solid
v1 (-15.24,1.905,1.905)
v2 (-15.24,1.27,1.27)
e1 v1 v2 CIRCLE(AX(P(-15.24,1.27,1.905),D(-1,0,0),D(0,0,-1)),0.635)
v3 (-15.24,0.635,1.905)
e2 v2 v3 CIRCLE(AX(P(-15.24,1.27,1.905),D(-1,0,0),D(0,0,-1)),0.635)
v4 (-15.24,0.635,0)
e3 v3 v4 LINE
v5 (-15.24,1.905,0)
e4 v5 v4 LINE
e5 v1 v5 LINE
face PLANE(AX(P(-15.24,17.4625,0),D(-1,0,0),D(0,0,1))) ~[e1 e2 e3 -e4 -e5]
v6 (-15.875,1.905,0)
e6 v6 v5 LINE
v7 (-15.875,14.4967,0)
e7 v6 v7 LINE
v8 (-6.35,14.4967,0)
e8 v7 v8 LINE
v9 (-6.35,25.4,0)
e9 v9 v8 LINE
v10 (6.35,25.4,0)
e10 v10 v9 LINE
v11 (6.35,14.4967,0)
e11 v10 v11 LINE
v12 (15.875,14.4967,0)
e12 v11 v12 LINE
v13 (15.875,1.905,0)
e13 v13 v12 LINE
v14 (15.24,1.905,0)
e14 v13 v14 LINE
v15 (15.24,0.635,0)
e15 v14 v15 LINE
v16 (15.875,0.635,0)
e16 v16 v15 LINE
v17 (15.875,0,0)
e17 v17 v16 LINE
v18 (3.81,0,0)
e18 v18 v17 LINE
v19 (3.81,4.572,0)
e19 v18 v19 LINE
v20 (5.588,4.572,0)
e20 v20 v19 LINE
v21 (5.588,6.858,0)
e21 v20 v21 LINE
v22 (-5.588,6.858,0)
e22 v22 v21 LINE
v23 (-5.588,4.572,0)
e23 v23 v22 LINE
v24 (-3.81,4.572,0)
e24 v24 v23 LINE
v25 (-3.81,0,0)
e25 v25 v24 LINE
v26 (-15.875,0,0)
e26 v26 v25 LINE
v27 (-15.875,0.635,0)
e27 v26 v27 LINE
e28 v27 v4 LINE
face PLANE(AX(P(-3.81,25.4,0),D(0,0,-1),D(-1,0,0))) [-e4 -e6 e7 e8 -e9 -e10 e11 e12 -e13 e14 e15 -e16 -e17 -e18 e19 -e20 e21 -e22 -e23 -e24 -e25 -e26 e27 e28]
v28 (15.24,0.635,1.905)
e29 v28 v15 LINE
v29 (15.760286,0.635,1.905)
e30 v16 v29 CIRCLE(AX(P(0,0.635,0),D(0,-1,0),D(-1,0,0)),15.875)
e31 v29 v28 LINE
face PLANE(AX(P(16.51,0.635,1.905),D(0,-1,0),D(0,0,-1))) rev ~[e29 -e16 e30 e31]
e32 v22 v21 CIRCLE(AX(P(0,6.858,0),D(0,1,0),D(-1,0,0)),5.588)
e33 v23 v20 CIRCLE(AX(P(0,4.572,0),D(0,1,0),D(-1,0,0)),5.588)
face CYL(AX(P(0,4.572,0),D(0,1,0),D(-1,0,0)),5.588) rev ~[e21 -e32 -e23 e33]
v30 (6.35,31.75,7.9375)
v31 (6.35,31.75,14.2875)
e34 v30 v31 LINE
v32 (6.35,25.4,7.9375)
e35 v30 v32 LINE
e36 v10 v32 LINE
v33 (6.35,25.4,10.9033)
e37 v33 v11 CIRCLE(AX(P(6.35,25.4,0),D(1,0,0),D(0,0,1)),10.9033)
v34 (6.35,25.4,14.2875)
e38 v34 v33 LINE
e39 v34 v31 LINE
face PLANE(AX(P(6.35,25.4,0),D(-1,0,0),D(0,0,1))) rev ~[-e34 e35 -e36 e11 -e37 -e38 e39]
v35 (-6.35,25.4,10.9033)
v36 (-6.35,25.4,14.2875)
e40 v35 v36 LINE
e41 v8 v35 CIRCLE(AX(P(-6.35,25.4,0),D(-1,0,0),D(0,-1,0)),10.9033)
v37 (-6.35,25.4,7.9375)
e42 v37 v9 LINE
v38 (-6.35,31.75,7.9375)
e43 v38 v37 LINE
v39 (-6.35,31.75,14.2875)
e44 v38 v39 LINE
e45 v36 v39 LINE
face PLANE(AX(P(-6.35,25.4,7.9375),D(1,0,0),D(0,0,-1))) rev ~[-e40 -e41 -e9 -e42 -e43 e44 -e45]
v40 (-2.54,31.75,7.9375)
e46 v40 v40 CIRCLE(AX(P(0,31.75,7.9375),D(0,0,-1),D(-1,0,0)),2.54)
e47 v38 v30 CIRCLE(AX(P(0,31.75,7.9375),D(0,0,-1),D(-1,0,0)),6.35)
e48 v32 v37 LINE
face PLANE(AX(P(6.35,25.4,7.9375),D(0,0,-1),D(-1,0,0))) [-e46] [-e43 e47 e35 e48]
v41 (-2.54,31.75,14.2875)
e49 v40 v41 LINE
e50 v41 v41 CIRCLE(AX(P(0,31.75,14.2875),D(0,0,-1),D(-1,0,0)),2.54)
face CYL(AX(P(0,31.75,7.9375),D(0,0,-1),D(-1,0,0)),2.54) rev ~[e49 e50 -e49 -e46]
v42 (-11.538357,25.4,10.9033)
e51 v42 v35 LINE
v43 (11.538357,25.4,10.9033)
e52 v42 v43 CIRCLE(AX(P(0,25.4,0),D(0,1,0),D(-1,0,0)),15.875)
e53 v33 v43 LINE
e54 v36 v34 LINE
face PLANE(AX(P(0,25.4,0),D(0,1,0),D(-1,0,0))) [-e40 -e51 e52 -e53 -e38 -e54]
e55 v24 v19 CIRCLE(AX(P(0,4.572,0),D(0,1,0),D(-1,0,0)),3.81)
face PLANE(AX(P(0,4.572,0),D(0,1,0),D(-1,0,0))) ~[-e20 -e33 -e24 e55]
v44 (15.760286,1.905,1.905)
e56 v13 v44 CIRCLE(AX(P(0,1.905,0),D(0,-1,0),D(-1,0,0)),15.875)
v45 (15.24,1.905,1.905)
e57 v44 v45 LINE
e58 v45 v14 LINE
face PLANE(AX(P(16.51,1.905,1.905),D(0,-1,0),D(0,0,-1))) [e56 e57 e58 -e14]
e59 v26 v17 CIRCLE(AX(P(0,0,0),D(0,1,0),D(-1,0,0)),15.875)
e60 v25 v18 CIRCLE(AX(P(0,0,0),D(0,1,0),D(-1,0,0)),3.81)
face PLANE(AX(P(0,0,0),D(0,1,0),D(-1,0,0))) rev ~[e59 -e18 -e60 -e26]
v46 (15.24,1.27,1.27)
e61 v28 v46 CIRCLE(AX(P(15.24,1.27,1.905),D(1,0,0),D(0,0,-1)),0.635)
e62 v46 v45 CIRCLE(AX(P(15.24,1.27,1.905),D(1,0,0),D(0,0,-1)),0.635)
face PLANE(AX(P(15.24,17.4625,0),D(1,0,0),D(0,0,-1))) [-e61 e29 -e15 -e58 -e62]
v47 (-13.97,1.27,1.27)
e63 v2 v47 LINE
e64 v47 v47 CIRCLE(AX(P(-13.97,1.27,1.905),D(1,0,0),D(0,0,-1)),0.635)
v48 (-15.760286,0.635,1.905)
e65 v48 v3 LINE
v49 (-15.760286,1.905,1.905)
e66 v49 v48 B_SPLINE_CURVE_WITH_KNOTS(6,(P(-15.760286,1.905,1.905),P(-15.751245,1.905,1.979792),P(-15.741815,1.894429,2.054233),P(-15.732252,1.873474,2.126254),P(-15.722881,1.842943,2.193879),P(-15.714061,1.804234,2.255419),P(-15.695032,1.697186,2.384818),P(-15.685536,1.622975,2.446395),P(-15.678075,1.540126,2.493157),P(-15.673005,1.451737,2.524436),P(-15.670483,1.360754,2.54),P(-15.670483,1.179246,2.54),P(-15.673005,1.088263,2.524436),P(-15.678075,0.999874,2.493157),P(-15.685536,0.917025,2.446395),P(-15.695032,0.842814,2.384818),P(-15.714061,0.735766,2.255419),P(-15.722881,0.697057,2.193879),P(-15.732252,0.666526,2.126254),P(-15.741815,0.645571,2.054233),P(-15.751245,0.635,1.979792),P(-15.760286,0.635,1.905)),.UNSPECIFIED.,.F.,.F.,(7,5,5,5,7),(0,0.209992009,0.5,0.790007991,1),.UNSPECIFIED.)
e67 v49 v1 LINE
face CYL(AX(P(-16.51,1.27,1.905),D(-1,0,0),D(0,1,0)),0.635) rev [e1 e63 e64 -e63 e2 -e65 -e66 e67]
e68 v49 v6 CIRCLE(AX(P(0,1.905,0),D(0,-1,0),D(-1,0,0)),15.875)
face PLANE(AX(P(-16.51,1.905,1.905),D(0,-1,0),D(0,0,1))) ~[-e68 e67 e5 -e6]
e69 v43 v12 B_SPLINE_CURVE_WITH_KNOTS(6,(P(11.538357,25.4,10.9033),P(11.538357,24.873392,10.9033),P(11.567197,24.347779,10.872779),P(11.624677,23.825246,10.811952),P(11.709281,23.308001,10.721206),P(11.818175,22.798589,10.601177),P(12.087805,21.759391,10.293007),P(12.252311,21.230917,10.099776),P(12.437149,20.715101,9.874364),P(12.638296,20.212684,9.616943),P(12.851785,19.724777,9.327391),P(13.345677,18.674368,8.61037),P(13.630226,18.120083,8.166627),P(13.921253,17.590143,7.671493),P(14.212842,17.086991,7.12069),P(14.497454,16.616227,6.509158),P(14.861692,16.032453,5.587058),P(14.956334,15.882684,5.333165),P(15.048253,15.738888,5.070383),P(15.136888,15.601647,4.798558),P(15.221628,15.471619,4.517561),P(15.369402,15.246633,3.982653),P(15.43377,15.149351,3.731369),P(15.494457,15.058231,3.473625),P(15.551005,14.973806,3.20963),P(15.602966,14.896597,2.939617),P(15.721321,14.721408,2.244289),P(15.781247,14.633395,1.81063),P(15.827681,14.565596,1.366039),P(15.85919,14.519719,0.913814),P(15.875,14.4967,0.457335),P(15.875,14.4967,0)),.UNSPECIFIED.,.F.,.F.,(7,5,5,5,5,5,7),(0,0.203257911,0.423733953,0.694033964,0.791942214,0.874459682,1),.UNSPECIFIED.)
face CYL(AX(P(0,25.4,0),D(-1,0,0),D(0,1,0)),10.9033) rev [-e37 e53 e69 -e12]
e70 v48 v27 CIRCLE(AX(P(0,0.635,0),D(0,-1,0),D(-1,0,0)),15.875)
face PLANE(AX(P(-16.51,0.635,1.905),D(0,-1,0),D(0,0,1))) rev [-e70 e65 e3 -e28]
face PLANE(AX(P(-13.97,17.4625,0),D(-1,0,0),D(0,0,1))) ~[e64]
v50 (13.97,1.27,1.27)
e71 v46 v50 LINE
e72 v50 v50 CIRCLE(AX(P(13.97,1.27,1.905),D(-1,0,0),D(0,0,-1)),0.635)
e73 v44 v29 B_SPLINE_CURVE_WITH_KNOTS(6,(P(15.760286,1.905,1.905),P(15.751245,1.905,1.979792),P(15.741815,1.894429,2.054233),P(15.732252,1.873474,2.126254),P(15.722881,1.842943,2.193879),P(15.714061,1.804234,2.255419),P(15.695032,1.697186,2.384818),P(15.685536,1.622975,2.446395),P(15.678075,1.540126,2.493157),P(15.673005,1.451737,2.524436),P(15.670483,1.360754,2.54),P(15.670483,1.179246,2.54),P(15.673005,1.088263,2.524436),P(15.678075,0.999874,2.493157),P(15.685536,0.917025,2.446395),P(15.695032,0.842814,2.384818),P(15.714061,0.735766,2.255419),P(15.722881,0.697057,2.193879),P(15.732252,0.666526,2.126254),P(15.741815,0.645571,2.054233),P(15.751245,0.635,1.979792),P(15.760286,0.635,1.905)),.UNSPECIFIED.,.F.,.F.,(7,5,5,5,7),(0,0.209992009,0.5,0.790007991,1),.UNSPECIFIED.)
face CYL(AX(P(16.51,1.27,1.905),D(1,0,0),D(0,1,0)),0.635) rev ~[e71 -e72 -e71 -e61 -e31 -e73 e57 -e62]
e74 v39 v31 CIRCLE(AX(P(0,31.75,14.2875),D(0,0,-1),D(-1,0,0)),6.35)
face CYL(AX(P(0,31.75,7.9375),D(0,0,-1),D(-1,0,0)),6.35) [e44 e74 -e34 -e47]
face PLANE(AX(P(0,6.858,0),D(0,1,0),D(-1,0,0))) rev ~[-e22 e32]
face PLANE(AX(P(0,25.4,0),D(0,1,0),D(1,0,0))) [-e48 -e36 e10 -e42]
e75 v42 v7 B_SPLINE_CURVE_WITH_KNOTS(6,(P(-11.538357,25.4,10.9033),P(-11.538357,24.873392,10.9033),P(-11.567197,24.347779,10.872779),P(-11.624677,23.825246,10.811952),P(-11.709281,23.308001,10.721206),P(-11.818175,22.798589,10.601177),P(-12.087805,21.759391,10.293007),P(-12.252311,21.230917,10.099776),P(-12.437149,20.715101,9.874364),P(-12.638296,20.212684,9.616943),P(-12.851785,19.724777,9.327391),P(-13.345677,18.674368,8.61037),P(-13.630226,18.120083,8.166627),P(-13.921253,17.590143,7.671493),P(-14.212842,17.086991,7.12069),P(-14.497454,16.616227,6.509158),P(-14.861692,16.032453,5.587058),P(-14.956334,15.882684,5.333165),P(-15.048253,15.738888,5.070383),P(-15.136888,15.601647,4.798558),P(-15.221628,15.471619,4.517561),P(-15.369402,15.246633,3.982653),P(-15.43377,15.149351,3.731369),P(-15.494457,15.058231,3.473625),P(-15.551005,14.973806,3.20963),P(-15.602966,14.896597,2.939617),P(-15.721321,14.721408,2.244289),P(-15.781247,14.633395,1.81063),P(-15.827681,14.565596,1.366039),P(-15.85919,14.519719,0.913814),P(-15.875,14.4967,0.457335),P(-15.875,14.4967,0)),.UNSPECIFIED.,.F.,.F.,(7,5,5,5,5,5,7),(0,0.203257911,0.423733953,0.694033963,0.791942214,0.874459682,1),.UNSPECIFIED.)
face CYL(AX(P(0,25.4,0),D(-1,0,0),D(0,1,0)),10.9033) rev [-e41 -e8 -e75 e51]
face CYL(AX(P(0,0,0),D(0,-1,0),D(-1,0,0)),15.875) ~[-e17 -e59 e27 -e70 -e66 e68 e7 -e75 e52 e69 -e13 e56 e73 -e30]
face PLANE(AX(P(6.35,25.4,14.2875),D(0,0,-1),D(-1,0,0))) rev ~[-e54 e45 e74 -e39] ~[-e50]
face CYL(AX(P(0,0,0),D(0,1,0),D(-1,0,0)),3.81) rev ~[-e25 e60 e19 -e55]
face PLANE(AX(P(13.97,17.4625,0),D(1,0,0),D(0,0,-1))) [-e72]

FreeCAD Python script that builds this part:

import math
import FreeCAD as App
import Part
import Sketcher

V = App.Vector
Q = App.Units.Quantity


def add_polygon(sketch, points):
    """Adds a closed chain of lines whose ends are joined by coincident constraints."""
    first, n = sketch.GeometryCount, len(points)
    for a, b in zip(points, points[1:] + points[:1]):
        sketch.addGeometry(Part.LineSegment(App.Vector(*a, 0), App.Vector(*b, 0)), False)
    for i in range(n):
        sketch.addConstraint(Sketcher.Constraint("Coincident", first + i, 2, first + (i + 1) % n, 1))

doc = App.newDocument("Part")
body = doc.addObject("PartDesign::Body", "Body")

# Sketch on XZ plane
sketch1 = doc.addObject("Sketcher::SketchObject", "Sketch")
body.addObject(sketch1)
sketch1.AttachmentSupport = (doc.XZ_Plane, [""])
sketch1.MapMode = "FlatFace"
sketch1.addGeometry(Part.LineSegment(V(16, 0, 0), V(-16, 0, 0)), False)
sketch1.addGeometry(Part.ArcOfCircle(Part.Circle(V(0, 0, 0), V(0, 0, 1), 16), math.radians(0), math.radians(180)), False)
sketch1.addConstraint(Sketcher.Constraint("Coincident", 0, 1, 1, 1))
sketch1.addConstraint(Sketcher.Constraint("Coincident", 1, 2, 0, 2))
sketch1.addConstraint(Sketcher.Constraint("Horizontal", 0))
sketch1.addConstraint(Sketcher.Constraint("Coincident", 1, 3, -1, 1))
sketch1.addConstraint(Sketcher.Constraint("PointOnObject", 0, 1, -1))
sketch1.addConstraint(Sketcher.Constraint("Radius", 1, Q("0.625 in")))
pad1 = doc.addObject("PartDesign::Pad", "Pad")
body.addObject(pad1)
pad1.Profile = sketch1
pad1.Length = Q("1 in")
pad1.Reversed = True

# Sketch on XY plane
sketch2 = doc.addObject("Sketcher::SketchObject", "Sketch001")
body.addObject(sketch2)
sketch2.AttachmentSupport = (doc.XY_Plane, [""])
sketch2.MapMode = "FlatFace"
add_polygon(sketch2, [(0, 0), (-3.8, 0), (-3.8, 4.6), (-5.6, 4.6), (-5.6, 6.9), (0, 6.9)])  # lines 0-5
sketch2.addConstraint(Sketcher.Constraint("Horizontal", 0))
sketch2.addConstraint(Sketcher.Constraint("Vertical", 1))
sketch2.addConstraint(Sketcher.Constraint("Horizontal", 2))
sketch2.addConstraint(Sketcher.Constraint("Vertical", 3))
sketch2.addConstraint(Sketcher.Constraint("Horizontal", 4))
sketch2.addConstraint(Sketcher.Constraint("Vertical", 5))
sketch2.addConstraint(Sketcher.Constraint("Coincident", 5, 2, -1, 1))
sketch2.addConstraint(Sketcher.Constraint("DistanceX", 2, 2, 2, 1, Q("0.07 in")))
sketch2.addConstraint(Sketcher.Constraint("DistanceX", 0, 2, 0, 1, Q("0.15 in")))
sketch2.addConstraint(Sketcher.Constraint("DistanceY", 1, 1, 1, 2, Q("0.18 in")))
sketch2.addConstraint(Sketcher.Constraint("DistanceY", 3, 1, 3, 2, Q("0.09 in")))
groove = doc.addObject("PartDesign::Groove", "Groove")
body.addObject(groove)
groove.Profile = sketch2
groove.ReferenceAxis = (sketch2, ["V_Axis"])
groove.Angle = 360

# Sketch on YZ plane
sketch3 = doc.addObject("Sketcher::SketchObject", "Sketch002")
body.addObject(sketch3)
sketch3.AttachmentSupport = (doc.YZ_Plane, [""])
sketch3.MapMode = "FlatFace"
sketch3.addGeometry(Part.Circle(V(25, 0, 0), V(0, 0, 1), 11), False)
sketch3.addConstraint(Sketcher.Constraint("PointOnObject", 0, 3, -1))
sketch3.addConstraint(Sketcher.Constraint("DistanceX", -1, 1, 0, 3, Q("1 in")))
sketch3.addConstraint(Sketcher.Constraint("Diameter", 0, 21.8066))
pocket1 = doc.addObject("PartDesign::Pocket", "Pocket")
body.addObject(pocket1)
pocket1.Profile = sketch3
pocket1.Length = Q("100 in")
pocket1.Midplane = True

# Sketch on XZ plane
sketch4 = doc.addObject("Sketcher::SketchObject", "Sketch003")
body.addObject(sketch4)
sketch4.AttachmentSupport = (doc.XZ_Plane, [""])
sketch4.MapMode = "FlatFace"
sketch4.AttachmentOffset = App.Placement(V(0, 0, -1 * 25.4), App.Rotation())
add_polygon(sketch4, [(-6, 8), (6, 8), (6, 0), (-6, 0)])  # lines 0-3
sketch4.addConstraint(Sketcher.Constraint("Horizontal", 0))
sketch4.addConstraint(Sketcher.Constraint("Vertical", 1))
sketch4.addConstraint(Sketcher.Constraint("Horizontal", 2))
sketch4.addConstraint(Sketcher.Constraint("Vertical", 3))
sketch4.addConstraint(Sketcher.Constraint("Symmetric", 1, 2, 2, 2, -1, 1))
sketch4.addConstraint(Sketcher.Constraint("DistanceX", 0, 1, 0, 2, Q("0.5 in")))
sketch4.addConstraint(Sketcher.Constraint("DistanceY", 1, 2, 1, 1, Q("0.3125 in")))
pad2 = doc.addObject("PartDesign::Pad", "Pad001")
body.addObject(pad2)
pad2.Profile = sketch4
pad2.Length = Q("0.5 in")

# Sketch on XZ plane
sketch5 = doc.addObject("Sketcher::SketchObject", "Sketch004")
body.addObject(sketch5)
sketch5.AttachmentSupport = (doc.XZ_Plane, [""])
sketch5.MapMode = "FlatFace"
sketch5.AttachmentOffset = App.Placement(V(0, 0, -1 * 25.4), App.Rotation())
add_polygon(sketch5, [(6, 14), (6, 8), (-6, 8), (-6, 14)])  # lines 0-3
sketch5.addConstraint(Sketcher.Constraint("Vertical", 0))
sketch5.addConstraint(Sketcher.Constraint("Horizontal", 1))
sketch5.addConstraint(Sketcher.Constraint("Vertical", 2))
sketch5.addConstraint(Sketcher.Constraint("Horizontal", 3))
sketch5.addConstraint(Sketcher.Constraint("DistanceX", 1, 2, 1, 1, Q("0.5 in")))
sketch5.addConstraint(Sketcher.Constraint("DistanceY", 0, 2, 0, 1, Q("0.25 in")))
sketch5.addConstraint(Sketcher.Constraint("DistanceX", -1, 1, 0, 2, Q("0.25 in")))
sketch5.addConstraint(Sketcher.Constraint("DistanceY", -1, 1, 0, 2, Q("0.3125 in")))
pad3 = doc.addObject("PartDesign::Pad", "Pad002")
body.addObject(pad3)
pad3.Profile = sketch5
pad3.Length = Q("0.1 in")
pad3.Reversed = True

# Sketch on XY plane
sketch6 = doc.addObject("Sketcher::SketchObject", "Sketch005")
body.addObject(sketch6)
sketch6.AttachmentSupport = (doc.XY_Plane, [""])
sketch6.MapMode = "FlatFace"
sketch6.AttachmentOffset = App.Placement(V(0, 0, 0.3125 * 25.4), App.Rotation())
sketch6.addGeometry(Part.LineSegment(V(-6.3, 27.9, 0), V(-6.3, 31.8, 0)), False)
sketch6.addGeometry(Part.ArcOfCircle(Part.Circle(V(0, 31.8, 0), V(0, 0, 1), 6.3), math.radians(0), math.radians(180)), False)
sketch6.addGeometry(Part.LineSegment(V(6.3, 31.8, 0), V(6.3, 27.9, 0)), False)
sketch6.addGeometry(Part.LineSegment(V(6.3, 27.9, 0), V(-6.3, 27.9, 0)), False)
sketch6.addGeometry(Part.Circle(V(0, 31.8, 0), V(0, 0, 1), 2.5), False)
sketch6.addConstraint(Sketcher.Constraint("Tangent", 0, 2, 1, 2))
sketch6.addConstraint(Sketcher.Constraint("Tangent", 1, 1, 2, 1))
sketch6.addConstraint(Sketcher.Constraint("Coincident", 2, 2, 3, 1))
sketch6.addConstraint(Sketcher.Constraint("Coincident", 3, 2, 0, 1))
sketch6.addConstraint(Sketcher.Constraint("Vertical", 0))
sketch6.addConstraint(Sketcher.Constraint("Vertical", 2))
sketch6.addConstraint(Sketcher.Constraint("Horizontal", 3))
sketch6.addConstraint(Sketcher.Constraint("Coincident", 4, 3, 1, 3))
sketch6.addConstraint(Sketcher.Constraint("PointOnObject", 1, 3, -2))
sketch6.addConstraint(Sketcher.Constraint("Diameter", 4, Q("0.2 in")))
sketch6.addConstraint(Sketcher.Constraint("Radius", 1, Q("0.25 in")))
sketch6.addConstraint(Sketcher.Constraint("DistanceY", 0, 1, 0, 2, Q("0.15 in")))
sketch6.addConstraint(Sketcher.Constraint("DistanceY", -1, 1, 2, 2, Q("1.1 in")))
pad4 = doc.addObject("PartDesign::Pad", "Pad003")
body.addObject(pad4)
pad4.Profile = sketch6
pad4.Length = Q("0.25 in")

# Sketch on YZ plane
sketch7 = doc.addObject("Sketcher::SketchObject", "Sketch006")
body.addObject(sketch7)
sketch7.AttachmentSupport = (doc.YZ_Plane, [""])
sketch7.MapMode = "FlatFace"
sketch7.AttachmentOffset = App.Placement(V(0, 0, 0.65 * 25.4), App.Rotation())
sketch7.addGeometry(Part.ArcOfCircle(Part.Circle(V(1.3, 1.9, 0), V(0, 0, 1), 0.6), math.radians(0), math.radians(180)), False)
sketch7.addGeometry(Part.LineSegment(V(0.6, 1.9, 0), V(0.6, 0, 0)), False)
sketch7.addGeometry(Part.LineSegment(V(0.6, 0, 0), V(1.9, 0, 0)), False)
sketch7.addGeometry(Part.LineSegment(V(1.9, 0, 0), V(1.9, 1.9, 0)), False)
sketch7.addConstraint(Sketcher.Constraint("Tangent", 0, 2, 1, 1))
sketch7.addConstraint(Sketcher.Constraint("Coincident", 1, 2, 2, 1))
sketch7.addConstraint(Sketcher.Constraint("Coincident", 2, 2, 3, 1))
sketch7.addConstraint(Sketcher.Constraint("Tangent", 3, 2, 0, 1))
sketch7.addConstraint(Sketcher.Constraint("Vertical", 1))
sketch7.addConstraint(Sketcher.Constraint("Horizontal", 2))
sketch7.addConstraint(Sketcher.Constraint("Vertical", 3))
sketch7.addConstraint(Sketcher.Constraint("PointOnObject", 1, 2, -1))
sketch7.addConstraint(Sketcher.Constraint("Radius", 0, Q("0.025 in")))
sketch7.addConstraint(Sketcher.Constraint("DistanceY", 1, 2, 1, 1, Q("0.075 in")))
sketch7.addConstraint(Sketcher.Constraint("DistanceX", -1, 1, 0, 3, Q("0.05 in")))
pocket2 = doc.addObject("PartDesign::Pocket", "Pocket001")
body.addObject(pocket2)
pocket2.Profile = sketch7
pocket2.Length = Q("0.05 in")

# Sketch on YZ plane
sketch8 = doc.addObject("Sketcher::SketchObject", "Sketch007")
body.addObject(sketch8)
sketch8.AttachmentSupport = (doc.YZ_Plane, [""])
sketch8.MapMode = "FlatFace"
sketch8.AttachmentOffset = App.Placement(V(0, 0, 0.65 * 25.4), App.Rotation())
sketch8.addGeometry(Part.Circle(V(1.3, 1.9, 0), V(0, 0, 1), 0.6), False)
sketch8.addConstraint(Sketcher.Constraint("Diameter", 0, Q("0.05 in")))
sketch8.addConstraint(Sketcher.Constraint("DistanceX", -1, 1, 0, 3, Q("0.05 in")))
sketch8.addConstraint(Sketcher.Constraint("DistanceY", -1, 1, 0, 3, Q("0.075 in")))
pocket3 = doc.addObject("PartDesign::Pocket", "Pocket002")
body.addObject(pocket3)
pocket3.Profile = sketch8
pocket3.Length = Q("0.1 in")
doc.recompute()

mirrored = doc.addObject("PartDesign::Mirrored", "Mirrored")
body.addObject(mirrored)
mirrored.Originals = [pocket2, pocket3]
mirrored.MirrorPlane = (doc.YZ_Plane, [""])
body.Tip = mirrored

# Sketch on XY plane
sketch9 = doc.addObject("Sketcher::SketchObject", "Sketch008")
body.addObject(sketch9)
sketch9.AttachmentSupport = (doc.XY_Plane, [""])
sketch9.MapMode = "FlatFace"
add_polygon(sketch9, [(6, 25), (6, 14), (-6, 14), (-6, 25)])  # lines 0-3
sketch9.addConstraint(Sketcher.Constraint("Vertical", 0))
sketch9.addConstraint(Sketcher.Constraint("Horizontal", 1))
sketch9.addConstraint(Sketcher.Constraint("Vertical", 2))
sketch9.addConstraint(Sketcher.Constraint("Horizontal", 3))
sketch9.addConstraint(Sketcher.Constraint("DistanceX", 1, 2, 1, 1, Q("0.5 in")))
sketch9.addConstraint(Sketcher.Constraint("DistanceY", -1, 1, 2, 2, Q("1 in")))
sketch9.addConstraint(Sketcher.Constraint("DistanceX", -1, 1, 0, 2, Q("0.25 in")))
sketch9.addConstraint(Sketcher.Constraint("DistanceY", 0, 2, 0, 1, 10.9033))
pad5 = doc.addObject("PartDesign::Pad", "Pad004")
body.addObject(pad5)
pad5.Profile = sketch9
pad5.Length = Q("0.5 in")

doc.recompute()
